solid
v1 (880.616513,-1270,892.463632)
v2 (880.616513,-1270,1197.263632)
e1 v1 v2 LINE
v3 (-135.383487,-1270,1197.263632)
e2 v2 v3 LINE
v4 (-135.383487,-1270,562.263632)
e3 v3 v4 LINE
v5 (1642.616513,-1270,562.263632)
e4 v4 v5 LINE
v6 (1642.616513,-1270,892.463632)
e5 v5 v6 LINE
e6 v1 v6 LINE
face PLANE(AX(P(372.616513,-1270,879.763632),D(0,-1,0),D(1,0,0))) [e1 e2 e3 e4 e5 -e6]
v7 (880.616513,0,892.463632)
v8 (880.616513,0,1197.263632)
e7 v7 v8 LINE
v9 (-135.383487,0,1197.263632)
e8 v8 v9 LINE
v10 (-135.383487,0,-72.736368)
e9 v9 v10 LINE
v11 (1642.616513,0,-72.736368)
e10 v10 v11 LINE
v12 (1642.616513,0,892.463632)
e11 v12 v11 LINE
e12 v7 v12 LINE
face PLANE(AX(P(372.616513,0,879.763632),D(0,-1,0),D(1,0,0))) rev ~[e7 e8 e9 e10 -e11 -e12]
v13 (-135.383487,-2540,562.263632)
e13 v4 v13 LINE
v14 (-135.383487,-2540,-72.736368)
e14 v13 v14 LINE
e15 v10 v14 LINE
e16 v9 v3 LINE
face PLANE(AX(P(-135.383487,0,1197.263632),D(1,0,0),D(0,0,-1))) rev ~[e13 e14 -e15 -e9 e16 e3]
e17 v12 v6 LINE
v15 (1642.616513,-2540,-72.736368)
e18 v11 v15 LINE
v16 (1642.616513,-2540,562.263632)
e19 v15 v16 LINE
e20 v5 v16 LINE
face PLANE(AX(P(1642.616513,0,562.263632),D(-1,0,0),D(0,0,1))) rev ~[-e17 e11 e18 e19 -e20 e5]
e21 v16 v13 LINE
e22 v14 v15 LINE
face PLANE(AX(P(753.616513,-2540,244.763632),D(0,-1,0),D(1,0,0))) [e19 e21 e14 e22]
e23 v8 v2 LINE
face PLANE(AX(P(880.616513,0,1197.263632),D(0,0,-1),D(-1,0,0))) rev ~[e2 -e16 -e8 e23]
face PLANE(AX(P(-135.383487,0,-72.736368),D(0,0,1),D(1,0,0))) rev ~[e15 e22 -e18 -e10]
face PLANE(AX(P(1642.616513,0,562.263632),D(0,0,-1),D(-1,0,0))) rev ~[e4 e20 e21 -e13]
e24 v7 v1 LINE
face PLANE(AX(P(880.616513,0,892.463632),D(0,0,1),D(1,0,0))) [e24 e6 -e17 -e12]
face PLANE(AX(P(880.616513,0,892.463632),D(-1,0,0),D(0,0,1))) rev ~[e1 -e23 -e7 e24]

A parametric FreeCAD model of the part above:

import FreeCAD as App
import Part
import Sketcher
from FreeCAD import Vector
Q = App.Units.Quantity

doc = App.newDocument("Part")
body = doc.addObject("PartDesign::Body", "Body")

sketch1 = doc.addObject("Sketcher::SketchObject", "Sketch")
body.addObject(sketch1)
sketch1.AttachmentSupport = (doc.XZ_Plane, [""])
sketch1.MapMode = "FlatFace"
sketch1.addGeometry([
    Part.LineSegment(Vector(-135, 562, 0), Vector(-135, -73, 0)),
    Part.LineSegment(Vector(-135, -73, 0), Vector(1643, -73, 0)),
    Part.LineSegment(Vector(1643, -73, 0), Vector(1643, 562, 0)),
    Part.LineSegment(Vector(1643, 562, 0), Vector(-135, 562, 0)),
], False)
sketch1.addConstraint([
    Sketcher.Constraint("Coincident", 0, 2, 1, 1),
    Sketcher.Constraint("Coincident", 1, 2, 2, 1),
    Sketcher.Constraint("Coincident", 2, 2, 3, 1),
    Sketcher.Constraint("Coincident", 3, 2, 0, 1),
    Sketcher.Constraint("Vertical", 0),
    Sketcher.Constraint("Horizontal", 1),
    Sketcher.Constraint("Vertical", 2),
    Sketcher.Constraint("Horizontal", 3),
    Sketcher.Constraint("DistanceX", 1, 1, 1, 2, Q("70 in")),
    Sketcher.Constraint("DistanceY", 0, 2, 0, 1, Q("25 in")),
    Sketcher.Constraint("DistanceY", 0, 2, -1, 1, 72.736368),
    Sketcher.Constraint("DistanceX", 0, 2, -1, 1, 135.383487),
])
pad1 = doc.addObject("PartDesign::Pad", "Pad")
body.addObject(pad1)
pad1.Profile = sketch1
pad1.Length = Q("100 in")

sketch2 = doc.addObject("Sketcher::SketchObject", "Sketch001")
body.addObject(sketch2)
sketch2.AttachmentSupport = (doc.XZ_Plane, [""])
sketch2.MapMode = "FlatFace"
sketch2.addGeometry([
    Part.LineSegment(Vector(-135, 1197, 0), Vector(-135, 562, 0)),
    Part.LineSegment(Vector(-135, 562, 0), Vector(1643, 562, 0)),
    Part.LineSegment(Vector(1643, 562, 0), Vector(1643, 892, 0)),
    Part.LineSegment(Vector(1643, 892, 0), Vector(881, 892, 0)),
    Part.LineSegment(Vector(881, 892, 0), Vector(881, 1197, 0)),
    Part.LineSegment(Vector(881, 1197, 0), Vector(-135, 1197, 0)),
], False)
sketch2.addConstraint([
    Sketcher.Constraint("Coincident", 0, 2, 1, 1),
    Sketcher.Constraint("Coincident", 1, 2, 2, 1),
    Sketcher.Constraint("Coincident", 2, 2, 3, 1),
    Sketcher.Constraint("Coincident", 3, 2, 4, 1),
    Sketcher.Constraint("Coincident", 4, 2, 5, 1),
    Sketcher.Constraint("Coincident", 5, 2, 0, 1),
    Sketcher.Constraint("Vertical", 0),
    Sketcher.Constraint("Horizontal", 1),
    Sketcher.Constraint("Vertical", 2),
    Sketcher.Constraint("Horizontal", 3),
    Sketcher.Constraint("Vertical", 4),
    Sketcher.Constraint("Horizontal", 5),
    Sketcher.Constraint("DistanceX", 1, 1, 1, 2, Q("70 in")),
    Sketcher.Constraint("DistanceX", 3, 2, 3, 1, Q("30 in")),
    Sketcher.Constraint("DistanceY", 0, 2, 0, 1, Q("25 in")),
    Sketcher.Constraint("DistanceY", 2, 1, 2, 2, Q("13 in")),
    Sketcher.Constraint("DistanceY", -1, 1, 0, 2, 562.263632),
    Sketcher.Constraint("DistanceX", 0, 2, -1, 1, 135.383487),
])
pad2 = doc.addObject("PartDesign::Pad", "Pad001")
body.addObject(pad2)
pad2.Profile = sketch2
pad2.Length = Q("50 in")

doc.recompute()
